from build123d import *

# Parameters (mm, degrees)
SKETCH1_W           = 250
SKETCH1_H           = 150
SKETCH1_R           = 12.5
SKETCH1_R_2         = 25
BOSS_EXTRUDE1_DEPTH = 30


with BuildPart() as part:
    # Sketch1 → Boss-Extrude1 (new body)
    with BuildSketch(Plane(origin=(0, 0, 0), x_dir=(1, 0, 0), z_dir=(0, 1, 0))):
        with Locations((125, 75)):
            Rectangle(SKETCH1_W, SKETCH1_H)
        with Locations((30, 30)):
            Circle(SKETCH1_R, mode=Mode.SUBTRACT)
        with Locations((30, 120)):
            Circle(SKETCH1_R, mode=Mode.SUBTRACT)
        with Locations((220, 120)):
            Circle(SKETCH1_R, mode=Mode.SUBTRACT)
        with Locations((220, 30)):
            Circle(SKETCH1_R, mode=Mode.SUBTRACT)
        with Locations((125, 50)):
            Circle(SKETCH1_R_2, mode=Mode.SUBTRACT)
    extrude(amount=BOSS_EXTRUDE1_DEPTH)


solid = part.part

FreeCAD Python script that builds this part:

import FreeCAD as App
import Part
import Sketcher

V = App.Vector
Q = App.Units.Quantity

doc = App.newDocument("Part")
body = doc.addObject("PartDesign::Body", "Body")

# Sketch on XZ plane
sketch1 = body.newObject("Sketcher::SketchObject", "Sketch")
sketch1.AttachmentSupport = (doc.getObject("XZ_Plane"), [""])
sketch1.MapMode = "FlatFace"
sketch1.addGeometry([
    Part.LineSegment(V(0, -150, 0), V(0, 0, 0)),  # 0
    Part.LineSegment(V(0, 0, 0), V(250, 0, 0)),  # 1
    Part.LineSegment(V(250, 0, 0), V(250, -150, 0)),  # 2
    Part.LineSegment(V(250, -150, 0), V(0, -150, 0)),  # 3
    Part.Circle(V(30, -30, 0), V(0, 0, 1), 12.5),  # 4
    Part.Circle(V(220, -30, 0), V(0, 0, 1), 12.5),  # 5
    Part.Circle(V(125, -50, 0), V(0, 0, 1), 25),  # 6
    Part.Circle(V(30, -120, 0), V(0, 0, 1), 12.5),  # 7
    Part.Circle(V(220, -120, 0), V(0, 0, 1), 12.5),  # 8
], False)
sketch1.addConstraint([
    Sketcher.Constraint("Coincident", 0, 2, 1, 1),
    Sketcher.Constraint("Coincident", 1, 2, 2, 1),
    Sketcher.Constraint("Coincident", 2, 2, 3, 1),
    Sketcher.Constraint("Coincident", 3, 2, 0, 1),
    Sketcher.Constraint("Vertical", 0),
    Sketcher.Constraint("Horizontal", 1),
    Sketcher.Constraint("Vertical", 2),
    Sketcher.Constraint("Horizontal", 3),
    Sketcher.Constraint("Coincident", 0, 2, -1, 1),
    Sketcher.Constraint("Equal", 4, 5),
    Sketcher.Constraint("Equal", 5, 7),
    Sketcher.Constraint("Equal", 7, 8),
    Sketcher.Constraint("Horizontal", 4, 3, 5, 3),
    Sketcher.Constraint("Horizontal", 7, 3, 8, 3),
    Sketcher.Constraint("Vertical", 4, 3, 7, 3),
    Sketcher.Constraint("Vertical", 5, 3, 8, 3),
    Sketcher.Constraint("Diameter", 4, Q("25 mm")),
    Sketcher.Constraint("Diameter", 6, Q("50 mm")),
    Sketcher.Constraint("DistanceX", 1, 1, 1, 2, Q("250 mm")),
    Sketcher.Constraint("DistanceY", 0, 1, 0, 2, Q("150 mm")),
    Sketcher.Constraint("DistanceX", -1, 1, 4, 3, Q("30 mm")),
    Sketcher.Constraint("DistanceY", 4, 3, -1, 1, Q("30 mm")),
    Sketcher.Constraint("DistanceX", -1, 1, 5, 3, Q("220 mm")),
    Sketcher.Constraint("DistanceX", -1, 1, 6, 3, Q("125 mm")),
    Sketcher.Constraint("DistanceY", 6, 3, -1, 1, Q("50 mm")),
    Sketcher.Constraint("DistanceY", 7, 3, -1, 1, Q("120 mm")),
])
pad1 = body.newObject("PartDesign::Pad", "Pad")
pad1.Profile = sketch1
pad1.Length = 30
pad1.Reversed = True

doc.recompute()
